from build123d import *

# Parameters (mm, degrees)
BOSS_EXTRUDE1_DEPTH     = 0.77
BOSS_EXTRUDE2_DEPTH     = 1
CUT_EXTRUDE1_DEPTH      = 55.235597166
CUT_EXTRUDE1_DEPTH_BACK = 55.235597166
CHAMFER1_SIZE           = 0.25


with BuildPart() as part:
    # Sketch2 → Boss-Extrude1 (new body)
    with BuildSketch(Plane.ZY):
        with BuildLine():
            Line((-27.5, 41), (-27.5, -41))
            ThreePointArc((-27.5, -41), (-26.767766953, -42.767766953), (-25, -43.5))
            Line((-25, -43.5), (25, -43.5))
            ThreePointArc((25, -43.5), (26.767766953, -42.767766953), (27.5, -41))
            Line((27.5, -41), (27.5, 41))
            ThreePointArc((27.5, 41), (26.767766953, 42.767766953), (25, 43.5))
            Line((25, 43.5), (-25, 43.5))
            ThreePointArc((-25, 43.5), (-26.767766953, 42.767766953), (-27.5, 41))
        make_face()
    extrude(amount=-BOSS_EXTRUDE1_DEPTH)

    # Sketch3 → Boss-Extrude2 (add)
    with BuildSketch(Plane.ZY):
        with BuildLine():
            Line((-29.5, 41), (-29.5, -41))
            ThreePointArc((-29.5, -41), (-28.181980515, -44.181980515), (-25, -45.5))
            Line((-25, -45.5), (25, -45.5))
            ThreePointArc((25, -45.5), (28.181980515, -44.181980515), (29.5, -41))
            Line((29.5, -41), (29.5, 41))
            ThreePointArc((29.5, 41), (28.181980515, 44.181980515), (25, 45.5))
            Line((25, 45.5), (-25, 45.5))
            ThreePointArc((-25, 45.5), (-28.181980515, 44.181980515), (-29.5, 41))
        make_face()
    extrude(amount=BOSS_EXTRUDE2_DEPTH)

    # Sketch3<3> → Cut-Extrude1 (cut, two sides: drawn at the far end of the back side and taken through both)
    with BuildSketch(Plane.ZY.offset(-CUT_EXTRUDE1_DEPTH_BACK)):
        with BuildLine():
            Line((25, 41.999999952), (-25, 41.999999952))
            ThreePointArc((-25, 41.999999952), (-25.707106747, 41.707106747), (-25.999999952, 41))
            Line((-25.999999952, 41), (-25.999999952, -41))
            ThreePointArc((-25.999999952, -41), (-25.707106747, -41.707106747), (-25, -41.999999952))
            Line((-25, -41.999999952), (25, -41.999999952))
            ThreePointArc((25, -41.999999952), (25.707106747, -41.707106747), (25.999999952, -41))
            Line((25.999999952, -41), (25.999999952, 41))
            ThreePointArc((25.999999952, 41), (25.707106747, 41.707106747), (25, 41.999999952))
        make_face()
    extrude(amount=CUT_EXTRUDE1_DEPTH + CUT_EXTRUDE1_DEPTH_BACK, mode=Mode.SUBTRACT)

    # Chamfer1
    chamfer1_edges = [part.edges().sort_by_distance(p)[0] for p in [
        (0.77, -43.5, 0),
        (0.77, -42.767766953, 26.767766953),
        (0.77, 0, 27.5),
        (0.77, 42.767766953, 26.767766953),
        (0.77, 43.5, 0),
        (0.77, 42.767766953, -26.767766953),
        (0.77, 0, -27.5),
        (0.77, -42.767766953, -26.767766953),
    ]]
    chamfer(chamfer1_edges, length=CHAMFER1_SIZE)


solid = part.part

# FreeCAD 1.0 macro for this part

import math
import FreeCAD as App
import Part
import Sketcher
Q = App.Units.Quantity


def edges_at(feature, points):
    """Names of the edges that pass closest to the given points."""
    edges = feature.Shape.Edges
    near = lambda p: min(range(len(edges)), key=lambda i: edges[i].distToShape(Part.Vertex(*p))[0])
    return sorted({f"Edge{near(p) + 1}" for p in points})

doc = App.newDocument("Part")
body = doc.addObject("PartDesign::Body", "Body")

sketch1 = doc.addObject("Sketcher::SketchObject", "Sketch")
body.addObject(sketch1)
sketch1.AttachmentSupport = (doc.YZ_Plane, [""])
sketch1.MapMode = "FlatFace"
sketch1.addGeometry([
    Part.LineSegment(App.Vector(41, -27.5, 0), App.Vector(-41, -27.5, 0)),
    Part.ArcOfCircle(Part.Circle(App.Vector(-41, -25, 0), App.Vector(0, 0, 1), 2.5), math.radians(180), math.radians(270)),
    Part.LineSegment(App.Vector(-43.5, -25, 0), App.Vector(-43.5, 25, 0)),
    Part.ArcOfCircle(Part.Circle(App.Vector(-41, 25, 0), App.Vector(0, 0, 1), 2.5), math.radians(90), math.radians(180)),
    Part.LineSegment(App.Vector(-41, 27.5, 0), App.Vector(41, 27.5, 0)),
    Part.ArcOfCircle(Part.Circle(App.Vector(41, 25, 0), App.Vector(0, 0, 1), 2.5), math.radians(0), math.radians(90)),
    Part.LineSegment(App.Vector(43.5, 25, 0), App.Vector(43.5, -25, 0)),
    Part.ArcOfCircle(Part.Circle(App.Vector(41, -25, 0), App.Vector(0, 0, 1), 2.5), math.radians(-90), math.radians(0)),
], False)
sketch1.addConstraint([
    Sketcher.Constraint("Tangent", 0, 2, 1, 2),
    Sketcher.Constraint("Tangent", 1, 1, 2, 1),
    Sketcher.Constraint("Tangent", 2, 2, 3, 2),
    Sketcher.Constraint("Tangent", 3, 1, 4, 1),
    Sketcher.Constraint("Tangent", 4, 2, 5, 2),
    Sketcher.Constraint("Tangent", 5, 1, 6, 1),
    Sketcher.Constraint("Tangent", 6, 2, 7, 2),
    Sketcher.Constraint("Tangent", 7, 1, 0, 1),
    Sketcher.Constraint("Horizontal", 0),
    Sketcher.Constraint("Vertical", 2),
    Sketcher.Constraint("Horizontal", 4),
    Sketcher.Constraint("Vertical", 6),
    Sketcher.Constraint("Equal", 1, 3),
    Sketcher.Constraint("Equal", 3, 5),
    Sketcher.Constraint("Equal", 5, 7),
    Sketcher.Constraint("Symmetric", 1, 3, 5, 3, -1, 1),
    Sketcher.Constraint("Radius", 1, Q("2.5 mm")),
    Sketcher.Constraint("DistanceX", 0, 2, 0, 1, Q("82 mm")),
    Sketcher.Constraint("DistanceY", 2, 1, 2, 2, Q("50 mm")),
])
pad1 = doc.addObject("PartDesign::Pad", "Pad")
body.addObject(pad1)
pad1.Profile = sketch1
pad1.Length = 0.77

sketch2 = doc.addObject("Sketcher::SketchObject", "Sketch001")
body.addObject(sketch2)
sketch2.AttachmentSupport = (doc.YZ_Plane, [""])
sketch2.MapMode = "FlatFace"
sketch2.addGeometry([
    Part.LineSegment(App.Vector(41, -29.5, 0), App.Vector(-41, -29.5, 0)),
    Part.ArcOfCircle(Part.Circle(App.Vector(-41, -25, 0), App.Vector(0, 0, 1), 4.5), math.radians(-180), math.radians(-90)),
    Part.LineSegment(App.Vector(-45.5, -25, 0), App.Vector(-45.5, 25, 0)),
    Part.ArcOfCircle(Part.Circle(App.Vector(-41, 25, 0), App.Vector(0, 0, 1), 4.5), math.radians(90), math.radians(180)),
    Part.LineSegment(App.Vector(-41, 29.5, 0), App.Vector(41, 29.5, 0)),
    Part.ArcOfCircle(Part.Circle(App.Vector(41, 25, 0), App.Vector(0, 0, 1), 4.5), math.radians(0), math.radians(90)),
    Part.LineSegment(App.Vector(45.5, 25, 0), App.Vector(45.5, -25, 0)),
    Part.ArcOfCircle(Part.Circle(App.Vector(41, -25, 0), App.Vector(0, 0, 1), 4.5), math.radians(-90), math.radians(0)),
], False)
sketch2.addConstraint([
    Sketcher.Constraint("Tangent", 0, 2, 1, 2),
    Sketcher.Constraint("Tangent", 1, 1, 2, 1),
    Sketcher.Constraint("Tangent", 2, 2, 3, 2),
    Sketcher.Constraint("Tangent", 3, 1, 4, 1),
    Sketcher.Constraint("Tangent", 4, 2, 5, 2),
    Sketcher.Constraint("Tangent", 5, 1, 6, 1),
    Sketcher.Constraint("Tangent", 6, 2, 7, 2),
    Sketcher.Constraint("Tangent", 7, 1, 0, 1),
    Sketcher.Constraint("Horizontal", 0),
    Sketcher.Constraint("Vertical", 2),
    Sketcher.Constraint("Horizontal", 4),
    Sketcher.Constraint("Vertical", 6),
    Sketcher.Constraint("Equal", 1, 3),
    Sketcher.Constraint("Equal", 3, 5),
    Sketcher.Constraint("Equal", 5, 7),
    Sketcher.Constraint("Symmetric", 1, 3, 5, 3, -1, 1),
    Sketcher.Constraint("Radius", 1, Q("4.5 mm")),
    Sketcher.Constraint("DistanceX", 0, 2, 0, 1, Q("82 mm")),
    Sketcher.Constraint("DistanceY", 2, 1, 2, 2, Q("50 mm")),
])
pad2 = doc.addObject("PartDesign::Pad", "Pad001")
body.addObject(pad2)
pad2.Profile = sketch2
pad2.Length = 1
pad2.Reversed = True

sketch3 = doc.addObject("Sketcher::SketchObject", "Sketch002")
body.addObject(sketch3)
sketch3.AttachmentSupport = (doc.YZ_Plane, [""])
sketch3.MapMode = "FlatFace"
sketch3.addGeometry([
    Part.LineSegment(App.Vector(42, 25, 0), App.Vector(42, -25, 0)),
    Part.ArcOfCircle(Part.Circle(App.Vector(41, -25, 0), App.Vector(0, 0, 1), 1), math.radians(-90), math.radians(0)),
    Part.LineSegment(App.Vector(41, -26, 0), App.Vector(-41, -26, 0)),
    Part.ArcOfCircle(Part.Circle(App.Vector(-41, -25, 0), App.Vector(0, 0, 1), 1), math.radians(-180), math.radians(-90)),
    Part.LineSegment(App.Vector(-42, -25, 0), App.Vector(-42, 25, 0)),
    Part.ArcOfCircle(Part.Circle(App.Vector(-41, 25, 0), App.Vector(0, 0, 1), 1), math.radians(90), math.radians(180)),
    Part.LineSegment(App.Vector(-41, 26, 0), App.Vector(41, 26, 0)),
    Part.ArcOfCircle(Part.Circle(App.Vector(41, 25, 0), App.Vector(0, 0, 1), 1), math.radians(0), math.radians(90)),
], False)
sketch3.addConstraint([
    Sketcher.Constraint("Tangent", 0, 2, 1, 2),
    Sketcher.Constraint("Tangent", 1, 1, 2, 1),
    Sketcher.Constraint("Tangent", 2, 2, 3, 2),
    Sketcher.Constraint("Tangent", 3, 1, 4, 1),
    Sketcher.Constraint("Tangent", 4, 2, 5, 2),
    Sketcher.Constraint("Tangent", 5, 1, 6, 1),
    Sketcher.Constraint("Tangent", 6, 2, 7, 2),
    Sketcher.Constraint("Tangent", 7, 1, 0, 1),
    Sketcher.Constraint("Vertical", 0),
    Sketcher.Constraint("Horizontal", 2),
    Sketcher.Constraint("Vertical", 4),
    Sketcher.Constraint("Horizontal", 6),
    Sketcher.Constraint("Equal", 1, 3),
    Sketcher.Constraint("Equal", 3, 5),
    Sketcher.Constraint("Equal", 5, 7),
    Sketcher.Constraint("Symmetric", 1, 3, 5, 3, -1, 1),
    Sketcher.Constraint("Radius", 1, Q("1 mm")),
    Sketcher.Constraint("DistanceX", 2, 2, 2, 1, Q("82 mm")),
    Sketcher.Constraint("DistanceY", 0, 2, 0, 1, Q("50 mm")),
])
pocket1 = doc.addObject("PartDesign::Pocket", "Pocket")
body.addObject(pocket1)
pocket1.Profile = sketch3
pocket1.Type = "ThroughAll"
pocket1.Midplane = True
doc.recompute()

chamfer = doc.addObject("PartDesign::Chamfer", "Chamfer")
body.addObject(chamfer)
chamfer.Base = (pocket1, edges_at(pocket1, [
    (0.77, -43.5, 0),
    (0.77, -42.768, 26.768),
    (0.77, 0, 27.5),
    (0.77, 42.768, 26.768),
    (0.77, 43.5, 0),
    (0.77, 42.768, -26.768),
    (0.77, 0, -27.5),
    (0.77, -42.768, -26.768),
]))
chamfer.Size = 0.25

doc.recompute()
